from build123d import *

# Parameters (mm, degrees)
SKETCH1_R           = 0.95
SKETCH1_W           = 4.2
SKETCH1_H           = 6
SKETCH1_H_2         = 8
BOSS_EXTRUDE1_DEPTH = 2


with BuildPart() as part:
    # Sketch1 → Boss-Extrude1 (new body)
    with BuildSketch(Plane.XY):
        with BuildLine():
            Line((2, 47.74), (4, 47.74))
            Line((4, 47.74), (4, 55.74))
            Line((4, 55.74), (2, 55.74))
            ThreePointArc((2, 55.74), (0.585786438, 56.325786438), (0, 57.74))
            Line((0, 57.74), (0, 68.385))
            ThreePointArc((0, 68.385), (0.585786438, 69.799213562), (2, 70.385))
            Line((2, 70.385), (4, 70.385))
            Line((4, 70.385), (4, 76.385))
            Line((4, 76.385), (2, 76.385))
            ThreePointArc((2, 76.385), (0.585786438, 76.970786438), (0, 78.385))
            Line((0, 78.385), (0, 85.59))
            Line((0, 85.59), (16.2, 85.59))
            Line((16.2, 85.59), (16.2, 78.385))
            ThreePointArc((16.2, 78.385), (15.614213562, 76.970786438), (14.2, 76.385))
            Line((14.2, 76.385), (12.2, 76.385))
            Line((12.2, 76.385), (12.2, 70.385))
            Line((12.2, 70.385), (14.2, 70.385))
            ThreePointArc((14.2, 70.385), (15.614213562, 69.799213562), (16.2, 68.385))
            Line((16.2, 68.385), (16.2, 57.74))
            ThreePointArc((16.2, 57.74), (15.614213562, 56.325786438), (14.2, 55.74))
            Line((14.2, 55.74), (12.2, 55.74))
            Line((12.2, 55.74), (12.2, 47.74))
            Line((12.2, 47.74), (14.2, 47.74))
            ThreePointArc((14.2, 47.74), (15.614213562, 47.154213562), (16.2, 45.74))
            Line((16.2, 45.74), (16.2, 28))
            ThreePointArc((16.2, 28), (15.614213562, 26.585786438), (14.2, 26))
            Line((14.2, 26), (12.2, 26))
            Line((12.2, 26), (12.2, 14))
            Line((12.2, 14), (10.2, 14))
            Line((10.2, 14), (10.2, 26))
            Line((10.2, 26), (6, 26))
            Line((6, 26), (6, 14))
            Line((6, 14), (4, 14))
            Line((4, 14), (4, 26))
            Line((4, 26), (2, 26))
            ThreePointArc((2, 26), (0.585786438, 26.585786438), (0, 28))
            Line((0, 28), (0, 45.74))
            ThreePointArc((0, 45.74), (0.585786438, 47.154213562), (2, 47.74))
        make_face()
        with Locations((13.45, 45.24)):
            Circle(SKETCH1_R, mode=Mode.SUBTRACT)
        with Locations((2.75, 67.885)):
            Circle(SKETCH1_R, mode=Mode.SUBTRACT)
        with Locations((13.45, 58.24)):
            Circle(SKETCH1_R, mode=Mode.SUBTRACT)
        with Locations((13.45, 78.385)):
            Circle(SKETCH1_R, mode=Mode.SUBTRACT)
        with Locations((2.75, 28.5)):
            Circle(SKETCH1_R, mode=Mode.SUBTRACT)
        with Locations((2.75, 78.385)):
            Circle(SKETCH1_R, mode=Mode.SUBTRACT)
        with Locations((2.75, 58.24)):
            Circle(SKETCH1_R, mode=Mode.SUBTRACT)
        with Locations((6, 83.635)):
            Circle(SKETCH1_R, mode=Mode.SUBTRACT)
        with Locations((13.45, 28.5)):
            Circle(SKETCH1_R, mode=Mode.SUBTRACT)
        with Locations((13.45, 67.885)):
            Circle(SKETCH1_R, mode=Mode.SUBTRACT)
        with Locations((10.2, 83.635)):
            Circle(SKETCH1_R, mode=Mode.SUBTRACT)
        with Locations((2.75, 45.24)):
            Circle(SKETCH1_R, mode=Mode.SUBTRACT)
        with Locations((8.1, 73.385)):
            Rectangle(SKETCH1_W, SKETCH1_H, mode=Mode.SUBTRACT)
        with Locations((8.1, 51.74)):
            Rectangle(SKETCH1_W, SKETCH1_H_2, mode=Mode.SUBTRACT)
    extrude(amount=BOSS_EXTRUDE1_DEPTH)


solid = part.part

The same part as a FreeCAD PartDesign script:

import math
import FreeCAD as App
import Part
import Sketcher
Q = App.Units.Quantity


def add_polygon(sketch, points):
    """Adds a closed chain of lines whose ends are joined by coincident constraints."""
    first, n = sketch.GeometryCount, len(points)
    for a, b in zip(points, points[1:] + points[:1]):
        sketch.addGeometry(Part.LineSegment(App.Vector(*a, 0), App.Vector(*b, 0)), False)
    for i in range(n):
        sketch.addConstraint(Sketcher.Constraint("Coincident", first + i, 2, first + (i + 1) % n, 1))

doc = App.newDocument("Part")
body = doc.addObject("PartDesign::Body", "Body")

# Sketch on XY plane
sketch1 = doc.addObject("Sketcher::SketchObject", "Sketch")
body.addObject(sketch1)
sketch1.AttachmentSupport = (doc.XY_Plane, [""])
sketch1.MapMode = "FlatFace"
sketch1.addGeometry(Part.LineSegment(App.Vector(4, 47.74, 0), App.Vector(2, 47.74, 0)), False)  # 0
sketch1.addGeometry(Part.ArcOfCircle(Part.Circle(App.Vector(2, 45.74, 0), App.Vector(0, 0, 1), 2), math.radians(90), math.radians(180)), False)  # 1
sketch1.addGeometry(Part.LineSegment(App.Vector(0, 45.74, 0), App.Vector(0, 28, 0)), False)  # 2
sketch1.addGeometry(Part.ArcOfCircle(Part.Circle(App.Vector(2, 28, 0), App.Vector(0, 0, 1), 2), math.radians(-180), math.radians(-90)), False)  # 3
sketch1.addGeometry(Part.LineSegment(App.Vector(2, 26, 0), App.Vector(4, 26, 0)), False)  # 4
sketch1.addGeometry(Part.LineSegment(App.Vector(4, 26, 0), App.Vector(4, 14, 0)), False)  # 5
sketch1.addGeometry(Part.LineSegment(App.Vector(4, 14, 0), App.Vector(6, 14, 0)), False)  # 6
sketch1.addGeometry(Part.LineSegment(App.Vector(6, 14, 0), App.Vector(6, 26, 0)), False)  # 7
sketch1.addGeometry(Part.LineSegment(App.Vector(6, 26, 0), App.Vector(10.2, 26, 0)), False)  # 8
sketch1.addGeometry(Part.LineSegment(App.Vector(10.2, 26, 0), App.Vector(10.2, 14, 0)), False)  # 9
sketch1.addGeometry(Part.LineSegment(App.Vector(10.2, 14, 0), App.Vector(12.2, 14, 0)), False)  # 10
sketch1.addGeometry(Part.LineSegment(App.Vector(12.2, 14, 0), App.Vector(12.2, 26, 0)), False)  # 11
sketch1.addGeometry(Part.LineSegment(App.Vector(12.2, 26, 0), App.Vector(14.2, 26, 0)), False)  # 12
sketch1.addGeometry(Part.ArcOfCircle(Part.Circle(App.Vector(14.2, 28, 0), App.Vector(0, 0, 1), 2), math.radians(-90), math.radians(0)), False)  # 13
sketch1.addGeometry(Part.LineSegment(App.Vector(16.2, 28, 0), App.Vector(16.2, 45.74, 0)), False)  # 14
sketch1.addGeometry(Part.ArcOfCircle(Part.Circle(App.Vector(14.2, 45.74, 0), App.Vector(0, 0, 1), 2), math.radians(0), math.radians(90)), False)  # 15
sketch1.addGeometry(Part.LineSegment(App.Vector(14.2, 47.74, 0), App.Vector(12.2, 47.74, 0)), False)  # 16
sketch1.addGeometry(Part.LineSegment(App.Vector(12.2, 47.74, 0), App.Vector(12.2, 55.74, 0)), False)  # 17
sketch1.addGeometry(Part.LineSegment(App.Vector(12.2, 55.74, 0), App.Vector(14.2, 55.74, 0)), False)  # 18
sketch1.addGeometry(Part.ArcOfCircle(Part.Circle(App.Vector(14.2, 57.74, 0), App.Vector(0, 0, 1), 2), math.radians(-90), math.radians(0)), False)  # 19
sketch1.addGeometry(Part.LineSegment(App.Vector(16.2, 57.74, 0), App.Vector(16.2, 68.385, 0)), False)  # 20
sketch1.addGeometry(Part.ArcOfCircle(Part.Circle(App.Vector(14.2, 68.385, 0), App.Vector(0, 0, 1), 2), math.radians(0), math.radians(90)), False)  # 21
sketch1.addGeometry(Part.LineSegment(App.Vector(14.2, 70.385, 0), App.Vector(12.2, 70.385, 0)), False)  # 22
sketch1.addGeometry(Part.LineSegment(App.Vector(12.2, 70.385, 0), App.Vector(12.2, 76.385, 0)), False)  # 23
sketch1.addGeometry(Part.LineSegment(App.Vector(12.2, 76.385, 0), App.Vector(14.2, 76.385, 0)), False)  # 24
sketch1.addGeometry(Part.ArcOfCircle(Part.Circle(App.Vector(14.2, 78.385, 0), App.Vector(0, 0, 1), 2), math.radians(-90), math.radians(0)), False)  # 25
sketch1.addGeometry(Part.LineSegment(App.Vector(16.2, 78.385, 0), App.Vector(16.2, 85.59, 0)), False)  # 26
sketch1.addGeometry(Part.LineSegment(App.Vector(16.2, 85.59, 0), App.Vector(0, 85.59, 0)), False)  # 27
sketch1.addGeometry(Part.LineSegment(App.Vector(0, 85.59, 0), App.Vector(0, 78.385, 0)), False)  # 28
sketch1.addGeometry(Part.ArcOfCircle(Part.Circle(App.Vector(2, 78.385, 0), App.Vector(0, 0, 1), 2), math.radians(-180), math.radians(-90)), False)  # 29
sketch1.addGeometry(Part.LineSegment(App.Vector(2, 76.385, 0), App.Vector(4, 76.385, 0)), False)  # 30
sketch1.addGeometry(Part.LineSegment(App.Vector(4, 76.385, 0), App.Vector(4, 70.385, 0)), False)  # 31
sketch1.addGeometry(Part.LineSegment(App.Vector(4, 70.385, 0), App.Vector(2, 70.385, 0)), False)  # 32
sketch1.addGeometry(Part.ArcOfCircle(Part.Circle(App.Vector(2, 68.385, 0), App.Vector(0, 0, 1), 2), math.radians(90), math.radians(180)), False)  # 33
sketch1.addGeometry(Part.LineSegment(App.Vector(0, 68.385, 0), App.Vector(0, 57.74, 0)), False)  # 34
sketch1.addGeometry(Part.ArcOfCircle(Part.Circle(App.Vector(2, 57.74, 0), App.Vector(0, 0, 1), 2), math.radians(-180), math.radians(-90)), False)  # 35
sketch1.addGeometry(Part.LineSegment(App.Vector(2, 55.74, 0), App.Vector(4, 55.74, 0)), False)  # 36
sketch1.addGeometry(Part.LineSegment(App.Vector(4, 55.74, 0), App.Vector(4, 47.74, 0)), False)  # 37
sketch1.addGeometry(Part.Circle(App.Vector(13.45, 28.5, 0), App.Vector(0, 0, 1), 0.95), False)  # 38
sketch1.addGeometry(Part.Circle(App.Vector(13.45, 45.24, 0), App.Vector(0, 0, 1), 0.95), False)  # 39
sketch1.addGeometry(Part.Circle(App.Vector(2.75, 28.5, 0), App.Vector(0, 0, 1), 0.95), False)  # 40
add_polygon(sketch1, [(6, 47.74), (6, 55.74), (10.2, 55.74), (10.2, 47.74)])  # lines 41-44
sketch1.addGeometry(Part.Circle(App.Vector(2.75, 45.24, 0), App.Vector(0, 0, 1), 0.95), False)  # 45
sketch1.addGeometry(Part.Circle(App.Vector(13.45, 58.24, 0), App.Vector(0, 0, 1), 0.95), False)  # 46
sketch1.addGeometry(Part.Circle(App.Vector(13.45, 67.885, 0), App.Vector(0, 0, 1), 0.95), False)  # 47
sketch1.addGeometry(Part.Circle(App.Vector(13.45, 78.385, 0), App.Vector(0, 0, 1), 0.95), False)  # 48
sketch1.addGeometry(Part.Circle(App.Vector(10.2, 83.635, 0), App.Vector(0, 0, 1), 0.95), False)  # 49
sketch1.addGeometry(Part.Circle(App.Vector(2.75, 58.24, 0), App.Vector(0, 0, 1), 0.95), False)  # 50
sketch1.addGeometry(Part.Circle(App.Vector(2.75, 67.885, 0), App.Vector(0, 0, 1), 0.95), False)  # 51
add_polygon(sketch1, [(6, 70.385), (6, 76.385), (10.2, 76.385), (10.2, 70.385)])  # lines 52-55
sketch1.addGeometry(Part.Circle(App.Vector(6, 83.635, 0), App.Vector(0, 0, 1), 0.95), False)  # 56
sketch1.addGeometry(Part.Circle(App.Vector(2.75, 78.385, 0), App.Vector(0, 0, 1), 0.95), False)  # 57
sketch1.addConstraint(Sketcher.Constraint("Tangent", 0, 2, 1, 1))
sketch1.addConstraint(Sketcher.Constraint("Tangent", 1, 2, 2, 1))
sketch1.addConstraint(Sketcher.Constraint("Tangent", 2, 2, 3, 1))
sketch1.addConstraint(Sketcher.Constraint("Tangent", 3, 2, 4, 1))
sketch1.addConstraint(Sketcher.Constraint("Coincident", 4, 2, 5, 1))
sketch1.addConstraint(Sketcher.Constraint("Coincident", 5, 2, 6, 1))
sketch1.addConstraint(Sketcher.Constraint("Coincident", 6, 2, 7, 1))
sketch1.addConstraint(Sketcher.Constraint("Coincident", 7, 2, 8, 1))
sketch1.addConstraint(Sketcher.Constraint("Coincident", 8, 2, 9, 1))
sketch1.addConstraint(Sketcher.Constraint("Coincident", 9, 2, 10, 1))
sketch1.addConstraint(Sketcher.Constraint("Coincident", 10, 2, 11, 1))
sketch1.addConstraint(Sketcher.Constraint("Coincident", 11, 2, 12, 1))
sketch1.addConstraint(Sketcher.Constraint("Tangent", 12, 2, 13, 1))
sketch1.addConstraint(Sketcher.Constraint("Tangent", 13, 2, 14, 1))
sketch1.addConstraint(Sketcher.Constraint("Tangent", 14, 2, 15, 1))
sketch1.addConstraint(Sketcher.Constraint("Tangent", 15, 2, 16, 1))
sketch1.addConstraint(Sketcher.Constraint("Coincident", 16, 2, 17, 1))
sketch1.addConstraint(Sketcher.Constraint("Coincident", 17, 2, 18, 1))
sketch1.addConstraint(Sketcher.Constraint("Tangent", 18, 2, 19, 1))
sketch1.addConstraint(Sketcher.Constraint("Tangent", 19, 2, 20, 1))
sketch1.addConstraint(Sketcher.Constraint("Tangent", 20, 2, 21, 1))
sketch1.addConstraint(Sketcher.Constraint("Tangent", 21, 2, 22, 1))
sketch1.addConstraint(Sketcher.Constraint("Coincident", 22, 2, 23, 1))
sketch1.addConstraint(Sketcher.Constraint("Coincident", 23, 2, 24, 1))
sketch1.addConstraint(Sketcher.Constraint("Tangent", 24, 2, 25, 1))
sketch1.addConstraint(Sketcher.Constraint("Tangent", 25, 2, 26, 1))
sketch1.addConstraint(Sketcher.Constraint("Coincident", 26, 2, 27, 1))
sketch1.addConstraint(Sketcher.Constraint("Coincident", 27, 2, 28, 1))
sketch1.addConstraint(Sketcher.Constraint("Tangent", 28, 2, 29, 1))
sketch1.addConstraint(Sketcher.Constraint("Tangent", 29, 2, 30, 1))
sketch1.addConstraint(Sketcher.Constraint("Coincident", 30, 2, 31, 1))
sketch1.addConstraint(Sketcher.Constraint("Coincident", 31, 2, 32, 1))
sketch1.addConstraint(Sketcher.Constraint("Tangent", 32, 2, 33, 1))
sketch1.addConstraint(Sketcher.Constraint("Tangent", 33, 2, 34, 1))
sketch1.addConstraint(Sketcher.Constraint("Tangent", 34, 2, 35, 1))
sketch1.addConstraint(Sketcher.Constraint("Tangent", 35, 2, 36, 1))
sketch1.addConstraint(Sketcher.Constraint("Coincident", 36, 2, 37, 1))
sketch1.addConstraint(Sketcher.Constraint("Coincident", 37, 2, 0, 1))
sketch1.addConstraint(Sketcher.Constraint("Horizontal", 0))
sketch1.addConstraint(Sketcher.Constraint("Vertical", 2))
sketch1.addConstraint(Sketcher.Constraint("Horizontal", 4))
sketch1.addConstraint(Sketcher.Constraint("Vertical", 5))
sketch1.addConstraint(Sketcher.Constraint("Horizontal", 6))
sketch1.addConstraint(Sketcher.Constraint("Vertical", 7))
sketch1.addConstraint(Sketcher.Constraint("Horizontal", 8))
sketch1.addConstraint(Sketcher.Constraint("Vertical", 9))
sketch1.addConstraint(Sketcher.Constraint("Horizontal", 10))
sketch1.addConstraint(Sketcher.Constraint("Vertical", 11))
sketch1.addConstraint(Sketcher.Constraint("Horizontal", 12))
sketch1.addConstraint(Sketcher.Constraint("Vertical", 14))
sketch1.addConstraint(Sketcher.Constraint("Horizontal", 16))
sketch1.addConstraint(Sketcher.Constraint("Vertical", 17))
sketch1.addConstraint(Sketcher.Constraint("Horizontal", 18))
sketch1.addConstraint(Sketcher.Constraint("Vertical", 20))
sketch1.addConstraint(Sketcher.Constraint("Horizontal", 22))
sketch1.addConstraint(Sketcher.Constraint("Vertical", 23))
sketch1.addConstraint(Sketcher.Constraint("Horizontal", 24))
sketch1.addConstraint(Sketcher.Constraint("Vertical", 26))
sketch1.addConstraint(Sketcher.Constraint("Horizontal", 27))
sketch1.addConstraint(Sketcher.Constraint("Vertical", 28))
sketch1.addConstraint(Sketcher.Constraint("Horizontal", 30))
sketch1.addConstraint(Sketcher.Constraint("Vertical", 31))
sketch1.addConstraint(Sketcher.Constraint("Horizontal", 32))
sketch1.addConstraint(Sketcher.Constraint("Vertical", 34))
sketch1.addConstraint(Sketcher.Constraint("Horizontal", 36))
sketch1.addConstraint(Sketcher.Constraint("Vertical", 37))
sketch1.addConstraint(Sketcher.Constraint("Vertical", 41))
sketch1.addConstraint(Sketcher.Constraint("Horizontal", 42))
sketch1.addConstraint(Sketcher.Constraint("Vertical", 43))
sketch1.addConstraint(Sketcher.Constraint("Horizontal", 44))
sketch1.addConstraint(Sketcher.Constraint("Vertical", 52))
sketch1.addConstraint(Sketcher.Constraint("Horizontal", 53))
sketch1.addConstraint(Sketcher.Constraint("Vertical", 54))
sketch1.addConstraint(Sketcher.Constraint("Horizontal", 55))
sketch1.addConstraint(Sketcher.Constraint("Equal", 1, 3))
sketch1.addConstraint(Sketcher.Constraint("Equal", 3, 13))
sketch1.addConstraint(Sketcher.Constraint("Equal", 13, 15))
sketch1.addConstraint(Sketcher.Constraint("Equal", 15, 19))
sketch1.addConstraint(Sketcher.Constraint("Equal", 19, 21))
sketch1.addConstraint(Sketcher.Constraint("Equal", 21, 25))
sketch1.addConstraint(Sketcher.Constraint("Equal", 25, 29))
sketch1.addConstraint(Sketcher.Constraint("Equal", 29, 33))
sketch1.addConstraint(Sketcher.Constraint("Equal", 33, 35))
sketch1.addConstraint(Sketcher.Constraint("Equal", 38, 39))
sketch1.addConstraint(Sketcher.Constraint("Equal", 39, 40))
sketch1.addConstraint(Sketcher.Constraint("Equal", 40, 45))
sketch1.addConstraint(Sketcher.Constraint("Equal", 45, 46))
sketch1.addConstraint(Sketcher.Constraint("Equal", 46, 47))
sketch1.addConstraint(Sketcher.Constraint("Equal", 47, 48))
sketch1.addConstraint(Sketcher.Constraint("Equal", 48, 49))
sketch1.addConstraint(Sketcher.Constraint("Equal", 49, 50))
sketch1.addConstraint(Sketcher.Constraint("Equal", 50, 51))
sketch1.addConstraint(Sketcher.Constraint("Equal", 51, 56))
sketch1.addConstraint(Sketcher.Constraint("Equal", 56, 57))
sketch1.addConstraint(Sketcher.Constraint("PointOnObject", 1, 2, -2))
sketch1.addConstraint(Sketcher.Constraint("PointOnObject", 27, 2, -2))
sketch1.addConstraint(Sketcher.Constraint("PointOnObject", 33, 2, -2))
sketch1.addConstraint(Sketcher.Constraint("Horizontal", 3, 3, 13, 3))
sketch1.addConstraint(Sketcher.Constraint("Horizontal", 1, 3, 15, 3))
sketch1.addConstraint(Sketcher.Constraint("Horizontal", 25, 3, 29, 3))
sketch1.addConstraint(Sketcher.Constraint("Horizontal", 21, 3, 33, 3))
sketch1.addConstraint(Sketcher.Constraint("Horizontal", 19, 3, 35, 3))
sketch1.addConstraint(Sketcher.Constraint("Horizontal", 38, 3, 40, 3))
sketch1.addConstraint(Sketcher.Constraint("Horizontal", 39, 3, 45, 3))
sketch1.addConstraint(Sketcher.Constraint("Horizontal", 29, 3, 48, 3))
sketch1.addConstraint(Sketcher.Constraint("Horizontal", 46, 3, 50, 3))
sketch1.addConstraint(Sketcher.Constraint("Horizontal", 47, 3, 51, 3))
sketch1.addConstraint(Sketcher.Constraint("Horizontal", 49, 3, 56, 3))
sketch1.addConstraint(Sketcher.Constraint("Horizontal", 48, 3, 57, 3))
sketch1.addConstraint(Sketcher.Constraint("Horizontal", 4, 2, 7, 2))
sketch1.addConstraint(Sketcher.Constraint("Horizontal", 6, 2, 9, 2))
sketch1.addConstraint(Sketcher.Constraint("Horizontal", 36, 2, 41, 2))
sketch1.addConstraint(Sketcher.Constraint("Horizontal", 37, 2, 43, 2))
sketch1.addConstraint(Sketcher.Constraint("Horizontal", 30, 2, 52, 2))
sketch1.addConstraint(Sketcher.Constraint("Horizontal", 32, 2, 54, 2))
sketch1.addConstraint(Sketcher.Constraint("Vertical", 15, 3, 19, 3))
sketch1.addConstraint(Sketcher.Constraint("Vertical", 21, 3, 25, 3))
sketch1.addConstraint(Sketcher.Constraint("Vertical", 38, 3, 39, 3))
sketch1.addConstraint(Sketcher.Constraint("Vertical", 40, 3, 45, 3))
sketch1.addConstraint(Sketcher.Constraint("Vertical", 39, 3, 46, 3))
sketch1.addConstraint(Sketcher.Constraint("Vertical", 46, 3, 47, 3))
sketch1.addConstraint(Sketcher.Constraint("Vertical", 47, 3, 48, 3))
sketch1.addConstraint(Sketcher.Constraint("Vertical", 45, 3, 50, 3))
sketch1.addConstraint(Sketcher.Constraint("Vertical", 50, 3, 51, 3))
sketch1.addConstraint(Sketcher.Constraint("Vertical", 51, 3, 57, 3))
sketch1.addConstraint(Sketcher.Constraint("Vertical", 56, 3, 6, 2))
sketch1.addConstraint(Sketcher.Constraint("Vertical", 49, 3, 8, 2))
sketch1.addConstraint(Sketcher.Constraint("Vertical", 11, 2, 16, 2))
sketch1.addConstraint(Sketcher.Constraint("Vertical", 17, 2, 22, 2))
sketch1.addConstraint(Sketcher.Constraint("Vertical", 5, 2, 30, 2))
sketch1.addConstraint(Sketcher.Constraint("Vertical", 31, 2, 36, 2))
sketch1.addConstraint(Sketcher.Constraint("Vertical", 7, 2, 41, 2))
sketch1.addConstraint(Sketcher.Constraint("Vertical", 9, 2, 42, 2))
sketch1.addConstraint(Sketcher.Constraint("Vertical", 44, 2, 52, 2))
sketch1.addConstraint(Sketcher.Constraint("Vertical", 43, 2, 53, 2))
sketch1.addConstraint(Sketcher.Constraint("Equal", 4, 6))
sketch1.addConstraint(Sketcher.Constraint("Equal", 6, 10))
sketch1.addConstraint(Sketcher.Constraint("Equal", 10, 12))
sketch1.addConstraint(Sketcher.Constraint("Radius", 1, Q("2 mm")))
sketch1.addConstraint(Sketcher.Constraint("Diameter", 38, Q("1.9 mm")))
sketch1.addConstraint(Sketcher.Constraint("DistanceX", 0, 2, 0, 1, Q("2 mm")))
sketch1.addConstraint(Sketcher.Constraint("DistanceY", 5, 2, 5, 1, Q("12 mm")))
sketch1.addConstraint(Sketcher.Constraint("DistanceY", 17, 1, 17, 2, Q("8 mm")))
sketch1.addConstraint(Sketcher.Constraint("DistanceY", 23, 1, 23, 2, Q("6 mm")))
sketch1.addConstraint(Sketcher.Constraint("DistanceX", 8, 1, 8, 2, Q("4.2 mm")))
sketch1.addConstraint(Sketcher.Constraint("DistanceY", -1, 1, 3, 3, Q("28 mm")))
sketch1.addConstraint(Sketcher.Constraint("DistanceY", 2, 2, 2, 1, Q("17.74 mm")))
sketch1.addConstraint(Sketcher.Constraint("DistanceY", -1, 1, 38, 3, Q("28.5 mm")))
sketch1.addConstraint(Sketcher.Constraint("DistanceY", 20, 1, 20, 2, Q("10.645 mm")))
sketch1.addConstraint(Sketcher.Constraint("DistanceY", 26, 1, 26, 2, Q("7.205 mm")))
sketch1.addConstraint(Sketcher.Constraint("DistanceX", -1, 1, 38, 3, Q("13.45 mm")))
sketch1.addConstraint(Sketcher.Constraint("DistanceY", -1, 1, 39, 3, Q("45.24 mm")))
sketch1.addConstraint(Sketcher.Constraint("DistanceX", -1, 1, 40, 3, Q("2.75 mm")))
sketch1.addConstraint(Sketcher.Constraint("DistanceY", -1, 1, 46, 3, Q("58.24 mm")))
sketch1.addConstraint(Sketcher.Constraint("DistanceY", -1, 1, 47, 3, Q("67.885 mm")))
sketch1.addConstraint(Sketcher.Constraint("DistanceY", -1, 1, 49, 3, Q("83.635 mm")))
pad1 = doc.addObject("PartDesign::Pad", "Pad")
body.addObject(pad1)
pad1.Profile = sketch1
pad1.Length = 2

doc.recompute()
